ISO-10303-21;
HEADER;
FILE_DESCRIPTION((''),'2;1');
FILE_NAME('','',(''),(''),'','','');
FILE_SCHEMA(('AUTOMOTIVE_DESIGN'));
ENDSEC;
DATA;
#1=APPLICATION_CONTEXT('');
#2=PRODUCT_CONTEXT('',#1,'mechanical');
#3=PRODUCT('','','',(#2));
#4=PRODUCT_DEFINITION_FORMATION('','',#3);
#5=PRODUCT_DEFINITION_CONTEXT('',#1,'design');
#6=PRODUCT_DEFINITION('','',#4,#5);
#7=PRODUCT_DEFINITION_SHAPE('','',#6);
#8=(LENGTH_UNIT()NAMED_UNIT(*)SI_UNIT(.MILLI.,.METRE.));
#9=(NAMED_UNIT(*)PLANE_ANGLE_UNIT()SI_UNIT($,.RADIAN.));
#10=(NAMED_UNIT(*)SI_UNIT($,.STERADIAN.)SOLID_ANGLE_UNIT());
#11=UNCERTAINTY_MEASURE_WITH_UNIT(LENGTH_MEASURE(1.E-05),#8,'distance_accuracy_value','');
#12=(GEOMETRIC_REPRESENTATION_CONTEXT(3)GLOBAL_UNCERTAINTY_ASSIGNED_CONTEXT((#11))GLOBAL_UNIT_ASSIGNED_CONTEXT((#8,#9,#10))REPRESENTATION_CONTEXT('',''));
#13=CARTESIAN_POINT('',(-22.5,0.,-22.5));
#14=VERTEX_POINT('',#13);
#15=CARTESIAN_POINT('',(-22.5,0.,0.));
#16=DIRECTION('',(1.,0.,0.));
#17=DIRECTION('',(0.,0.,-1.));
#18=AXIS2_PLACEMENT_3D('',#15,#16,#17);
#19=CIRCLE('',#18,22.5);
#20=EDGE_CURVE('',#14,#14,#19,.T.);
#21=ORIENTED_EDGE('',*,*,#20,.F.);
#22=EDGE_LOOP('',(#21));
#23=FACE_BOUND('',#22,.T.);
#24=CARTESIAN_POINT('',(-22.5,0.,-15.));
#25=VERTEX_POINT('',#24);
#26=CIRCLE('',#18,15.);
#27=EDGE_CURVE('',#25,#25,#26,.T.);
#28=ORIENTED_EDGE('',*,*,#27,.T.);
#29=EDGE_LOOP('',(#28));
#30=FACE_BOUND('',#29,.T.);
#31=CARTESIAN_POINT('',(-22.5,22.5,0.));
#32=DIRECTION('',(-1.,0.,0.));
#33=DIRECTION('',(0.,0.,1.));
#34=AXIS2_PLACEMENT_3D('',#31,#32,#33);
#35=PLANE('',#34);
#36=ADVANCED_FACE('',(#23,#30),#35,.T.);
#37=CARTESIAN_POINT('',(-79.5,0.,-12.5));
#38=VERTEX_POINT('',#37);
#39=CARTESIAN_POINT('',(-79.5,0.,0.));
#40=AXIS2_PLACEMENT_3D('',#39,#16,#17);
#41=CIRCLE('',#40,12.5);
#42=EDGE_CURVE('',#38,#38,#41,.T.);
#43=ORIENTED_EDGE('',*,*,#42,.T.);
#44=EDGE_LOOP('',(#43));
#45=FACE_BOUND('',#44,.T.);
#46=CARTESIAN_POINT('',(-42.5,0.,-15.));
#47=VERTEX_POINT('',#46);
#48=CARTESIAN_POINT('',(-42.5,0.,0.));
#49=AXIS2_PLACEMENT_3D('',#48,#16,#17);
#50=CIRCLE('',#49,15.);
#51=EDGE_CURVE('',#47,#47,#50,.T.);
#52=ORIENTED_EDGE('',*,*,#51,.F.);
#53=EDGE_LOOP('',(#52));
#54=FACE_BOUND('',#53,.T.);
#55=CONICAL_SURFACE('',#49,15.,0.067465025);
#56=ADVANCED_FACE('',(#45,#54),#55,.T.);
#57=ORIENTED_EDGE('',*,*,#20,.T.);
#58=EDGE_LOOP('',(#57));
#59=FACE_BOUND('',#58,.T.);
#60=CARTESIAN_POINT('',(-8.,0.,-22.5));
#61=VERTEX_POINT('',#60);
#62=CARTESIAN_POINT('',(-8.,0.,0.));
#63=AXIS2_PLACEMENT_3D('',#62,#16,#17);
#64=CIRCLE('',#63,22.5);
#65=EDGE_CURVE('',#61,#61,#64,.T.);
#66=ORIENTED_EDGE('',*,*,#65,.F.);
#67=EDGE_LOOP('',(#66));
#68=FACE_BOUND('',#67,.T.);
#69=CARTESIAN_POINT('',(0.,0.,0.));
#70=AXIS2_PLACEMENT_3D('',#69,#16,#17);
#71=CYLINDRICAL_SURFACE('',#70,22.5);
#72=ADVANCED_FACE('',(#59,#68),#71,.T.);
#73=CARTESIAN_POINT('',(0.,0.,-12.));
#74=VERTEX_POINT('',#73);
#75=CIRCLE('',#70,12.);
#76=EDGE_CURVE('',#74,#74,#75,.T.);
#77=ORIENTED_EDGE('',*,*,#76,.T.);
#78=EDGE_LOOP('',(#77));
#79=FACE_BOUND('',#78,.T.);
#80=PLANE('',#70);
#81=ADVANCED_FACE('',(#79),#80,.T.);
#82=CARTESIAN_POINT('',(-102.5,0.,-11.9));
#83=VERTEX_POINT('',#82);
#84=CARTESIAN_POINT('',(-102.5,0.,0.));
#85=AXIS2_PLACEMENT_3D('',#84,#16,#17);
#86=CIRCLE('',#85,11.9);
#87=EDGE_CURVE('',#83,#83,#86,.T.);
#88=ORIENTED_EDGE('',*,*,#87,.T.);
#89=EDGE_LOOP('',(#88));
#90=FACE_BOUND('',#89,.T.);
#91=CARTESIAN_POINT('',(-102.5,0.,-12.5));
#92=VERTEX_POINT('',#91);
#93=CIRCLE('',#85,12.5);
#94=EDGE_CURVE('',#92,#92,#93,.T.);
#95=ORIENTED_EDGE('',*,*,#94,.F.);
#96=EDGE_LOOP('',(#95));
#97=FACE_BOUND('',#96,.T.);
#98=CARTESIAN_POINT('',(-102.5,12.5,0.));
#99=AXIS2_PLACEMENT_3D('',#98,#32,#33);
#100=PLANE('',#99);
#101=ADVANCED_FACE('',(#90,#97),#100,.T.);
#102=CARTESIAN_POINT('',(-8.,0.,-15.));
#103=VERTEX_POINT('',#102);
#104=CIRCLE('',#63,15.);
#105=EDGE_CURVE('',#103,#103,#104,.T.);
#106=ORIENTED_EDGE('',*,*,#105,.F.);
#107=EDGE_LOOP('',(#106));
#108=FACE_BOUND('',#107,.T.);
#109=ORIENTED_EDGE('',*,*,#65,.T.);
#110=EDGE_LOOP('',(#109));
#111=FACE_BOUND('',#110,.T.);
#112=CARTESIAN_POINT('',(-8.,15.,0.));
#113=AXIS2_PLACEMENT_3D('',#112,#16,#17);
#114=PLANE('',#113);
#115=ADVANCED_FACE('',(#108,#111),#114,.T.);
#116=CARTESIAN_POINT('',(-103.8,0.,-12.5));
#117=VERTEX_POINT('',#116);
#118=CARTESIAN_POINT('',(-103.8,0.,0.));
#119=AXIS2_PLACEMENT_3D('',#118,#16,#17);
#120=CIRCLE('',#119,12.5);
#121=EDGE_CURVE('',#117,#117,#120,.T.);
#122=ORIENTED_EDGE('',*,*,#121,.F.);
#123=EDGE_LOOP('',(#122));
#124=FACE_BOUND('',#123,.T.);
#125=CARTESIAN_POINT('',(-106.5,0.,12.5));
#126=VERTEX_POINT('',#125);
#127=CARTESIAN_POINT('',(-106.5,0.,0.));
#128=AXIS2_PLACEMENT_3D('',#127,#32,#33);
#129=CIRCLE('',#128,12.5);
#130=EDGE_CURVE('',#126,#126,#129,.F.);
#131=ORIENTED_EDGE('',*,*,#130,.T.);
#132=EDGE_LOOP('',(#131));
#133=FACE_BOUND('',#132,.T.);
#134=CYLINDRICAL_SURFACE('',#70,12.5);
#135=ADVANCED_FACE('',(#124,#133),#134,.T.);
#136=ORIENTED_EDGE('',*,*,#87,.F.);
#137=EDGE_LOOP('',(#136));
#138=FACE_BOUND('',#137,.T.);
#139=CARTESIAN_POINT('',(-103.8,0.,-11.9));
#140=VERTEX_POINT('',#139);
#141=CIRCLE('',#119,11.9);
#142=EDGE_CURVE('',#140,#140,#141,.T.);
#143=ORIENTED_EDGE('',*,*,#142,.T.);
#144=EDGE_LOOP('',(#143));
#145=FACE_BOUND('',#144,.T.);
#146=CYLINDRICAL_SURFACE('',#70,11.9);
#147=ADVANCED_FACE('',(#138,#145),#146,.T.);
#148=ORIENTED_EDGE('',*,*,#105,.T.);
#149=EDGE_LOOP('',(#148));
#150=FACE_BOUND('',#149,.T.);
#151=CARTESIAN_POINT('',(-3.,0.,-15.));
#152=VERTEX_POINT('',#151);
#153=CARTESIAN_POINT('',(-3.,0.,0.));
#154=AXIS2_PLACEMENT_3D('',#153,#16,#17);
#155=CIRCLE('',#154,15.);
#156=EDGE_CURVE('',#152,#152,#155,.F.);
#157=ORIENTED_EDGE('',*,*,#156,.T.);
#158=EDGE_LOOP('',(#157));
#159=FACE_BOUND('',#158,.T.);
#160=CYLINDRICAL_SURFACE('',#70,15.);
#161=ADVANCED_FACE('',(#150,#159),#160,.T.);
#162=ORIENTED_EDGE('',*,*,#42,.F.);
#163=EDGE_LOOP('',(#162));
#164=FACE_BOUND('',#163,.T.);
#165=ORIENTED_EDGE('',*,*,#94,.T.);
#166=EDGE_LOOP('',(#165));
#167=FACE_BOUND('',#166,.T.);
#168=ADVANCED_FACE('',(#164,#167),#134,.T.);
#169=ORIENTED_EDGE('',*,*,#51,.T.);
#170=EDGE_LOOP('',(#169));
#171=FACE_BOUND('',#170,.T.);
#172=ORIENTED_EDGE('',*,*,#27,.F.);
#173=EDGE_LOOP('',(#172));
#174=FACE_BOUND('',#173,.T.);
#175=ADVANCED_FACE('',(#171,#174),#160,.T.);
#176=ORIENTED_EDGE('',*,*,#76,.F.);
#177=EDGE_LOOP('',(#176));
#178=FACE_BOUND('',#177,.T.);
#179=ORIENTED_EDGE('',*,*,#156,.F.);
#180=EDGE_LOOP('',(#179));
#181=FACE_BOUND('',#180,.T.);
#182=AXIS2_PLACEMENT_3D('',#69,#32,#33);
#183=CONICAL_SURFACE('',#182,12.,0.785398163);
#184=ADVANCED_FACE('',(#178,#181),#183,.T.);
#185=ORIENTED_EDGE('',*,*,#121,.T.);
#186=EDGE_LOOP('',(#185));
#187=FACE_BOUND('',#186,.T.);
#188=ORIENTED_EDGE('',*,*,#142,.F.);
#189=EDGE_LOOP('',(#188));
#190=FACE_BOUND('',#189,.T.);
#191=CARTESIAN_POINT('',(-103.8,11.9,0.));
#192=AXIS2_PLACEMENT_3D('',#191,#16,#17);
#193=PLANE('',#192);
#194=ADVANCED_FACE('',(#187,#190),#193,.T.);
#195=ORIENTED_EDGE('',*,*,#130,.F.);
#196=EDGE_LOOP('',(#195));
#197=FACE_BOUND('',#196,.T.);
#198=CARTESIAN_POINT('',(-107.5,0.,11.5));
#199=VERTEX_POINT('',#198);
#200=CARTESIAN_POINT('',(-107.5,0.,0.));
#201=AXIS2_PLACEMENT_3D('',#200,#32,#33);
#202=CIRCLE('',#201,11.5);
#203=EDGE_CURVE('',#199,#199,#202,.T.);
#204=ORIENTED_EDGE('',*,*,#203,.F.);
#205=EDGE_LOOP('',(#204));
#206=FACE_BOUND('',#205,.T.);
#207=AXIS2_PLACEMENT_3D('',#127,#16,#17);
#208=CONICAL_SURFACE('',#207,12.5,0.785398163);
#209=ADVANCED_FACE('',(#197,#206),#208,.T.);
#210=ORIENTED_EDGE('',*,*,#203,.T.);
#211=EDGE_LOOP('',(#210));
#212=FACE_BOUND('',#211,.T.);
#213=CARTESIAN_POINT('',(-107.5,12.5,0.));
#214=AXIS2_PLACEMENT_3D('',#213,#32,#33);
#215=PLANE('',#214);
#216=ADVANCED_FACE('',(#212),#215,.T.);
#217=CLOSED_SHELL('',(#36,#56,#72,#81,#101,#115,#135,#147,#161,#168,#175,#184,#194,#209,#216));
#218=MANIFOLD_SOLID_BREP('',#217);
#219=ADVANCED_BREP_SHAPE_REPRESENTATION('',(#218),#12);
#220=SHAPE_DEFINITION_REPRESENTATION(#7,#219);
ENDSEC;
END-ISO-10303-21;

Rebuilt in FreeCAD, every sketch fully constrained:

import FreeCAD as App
import Part
import Sketcher

V = App.Vector


def edges_at(feature, points):
    """Names of the edges that pass closest to the given points."""
    edges = feature.Shape.Edges
    near = lambda p: min(range(len(edges)), key=lambda i: edges[i].distToShape(Part.Vertex(*p))[0])
    return sorted({f"Edge{near(p) + 1}" for p in points})

doc = App.newDocument("Part")
body = doc.addObject("PartDesign::Body", "Body")

# Sketch on XY plane
sketch1 = body.newObject("Sketcher::SketchObject", "Sketch")
sketch1.AttachmentSupport = (doc.getObject("XY_Plane"), [""])
sketch1.MapMode = "FlatFace"
sketch1.addGeometry([
    Part.LineSegment(V(0, 0, 0), V(0, 15, 0)),  # 0
    Part.LineSegment(V(0, 15, 0), V(-8, 15, 0)),  # 1
    Part.LineSegment(V(-8, 15, 0), V(-8, 22.5, 0)),  # 2
    Part.LineSegment(V(-8, 22.5, 0), V(-22.5, 22.5, 0)),  # 3
    Part.LineSegment(V(-22.5, 22.5, 0), V(-22.5, 15, 0)),  # 4
    Part.LineSegment(V(-22.5, 15, 0), V(-42.5, 15, 0)),  # 5
    Part.LineSegment(V(-42.5, 15, 0), V(-79.5, 12.5, 0)),  # 6
    Part.LineSegment(V(-79.5, 12.5, 0), V(-102.5, 12.5, 0)),  # 7
    Part.LineSegment(V(-102.5, 12.5, 0), V(-102.5, 11.9, 0)),  # 8
    Part.LineSegment(V(-102.5, 11.9, 0), V(-103.8, 11.9, 0)),  # 9
    Part.LineSegment(V(-103.8, 11.9, 0), V(-103.8, 12.5, 0)),  # 10
    Part.LineSegment(V(-103.8, 12.5, 0), V(-107.5, 12.5, 0)),  # 11
    Part.LineSegment(V(-107.5, 12.5, 0), V(-107.5, 0, 0)),  # 12
    Part.LineSegment(V(-107.5, 0, 0), V(0, 0, 0)),  # 13
], False)
sketch1.addConstraint([
    Sketcher.Constraint("Coincident", 0, 2, 1, 1),
    Sketcher.Constraint("Coincident", 1, 2, 2, 1),
    Sketcher.Constraint("Coincident", 2, 2, 3, 1),
    Sketcher.Constraint("Coincident", 3, 2, 4, 1),
    Sketcher.Constraint("Coincident", 4, 2, 5, 1),
    Sketcher.Constraint("Coincident", 5, 2, 6, 1),
    Sketcher.Constraint("Coincident", 6, 2, 7, 1),
    Sketcher.Constraint("Coincident", 7, 2, 8, 1),
    Sketcher.Constraint("Coincident", 8, 2, 9, 1),
    Sketcher.Constraint("Coincident", 9, 2, 10, 1),
    Sketcher.Constraint("Coincident", 10, 2, 11, 1),
    Sketcher.Constraint("Coincident", 11, 2, 12, 1),
    Sketcher.Constraint("Coincident", 12, 2, 13, 1),
    Sketcher.Constraint("Coincident", 13, 2, 0, 1),
    Sketcher.Constraint("Vertical", 0),
    Sketcher.Constraint("Horizontal", 1),
    Sketcher.Constraint("Vertical", 2),
    Sketcher.Constraint("Horizontal", 3),
    Sketcher.Constraint("Vertical", 4),
    Sketcher.Constraint("Horizontal", 5),
    Sketcher.Constraint("Horizontal", 7),
    Sketcher.Constraint("Vertical", 8),
    Sketcher.Constraint("Horizontal", 9),
    Sketcher.Constraint("Vertical", 10),
    Sketcher.Constraint("Horizontal", 11),
    Sketcher.Constraint("Vertical", 12),
    Sketcher.Constraint("Horizontal", 13),
    Sketcher.Constraint("Coincident", 13, 2, -1, 1),
    Sketcher.Constraint("Horizontal", 1, 2, 4, 2),
    Sketcher.Constraint("Horizontal", 7, 2, 10, 2),
    Sketcher.Constraint("DistanceX", 1, 2, 1, 1, 8.0),
    Sketcher.Constraint("DistanceX", 5, 2, 5, 1, 20.0),
    Sketcher.Constraint("DistanceX", 7, 2, 7, 1, 23.0),
    Sketcher.Constraint("DistanceY", 0, 1, 0, 2, 15.0),
    Sketcher.Constraint("DistanceX", 3, 2, 3, 1, 14.5),
    Sketcher.Constraint("DistanceX", 9, 2, 9, 1, 1.3),
    Sketcher.Constraint("DistanceX", 11, 2, 11, 1, 3.7),
    Sketcher.Constraint("DistanceX", 13, 1, 13, 2, 107.5),
    Sketcher.Constraint("DistanceY", 2, 1, 2, 2, 7.5),
    Sketcher.Constraint("DistanceY", 8, 2, 8, 1, 0.6),
    Sketcher.Constraint("DistanceY", 12, 2, 12, 1, 12.5),
])
revolution = body.newObject("PartDesign::Revolution", "Revolution")
revolution.Profile = sketch1
revolution.ReferenceAxis = (sketch1, ["H_Axis"])
revolution.Angle = 360
doc.recompute()

chamfer = body.newObject("PartDesign::Chamfer", "Chamfer")
chamfer.Base = (revolution, edges_at(revolution, [(-107.5, 0, 12.5)]))
chamfer.Size = 1
doc.recompute()

chamfer2 = body.newObject("PartDesign::Chamfer", "Chamfer001")
chamfer2.Base = (chamfer, edges_at(chamfer, [(0, 0, 15)]))
chamfer2.Size = 3

doc.recompute()
